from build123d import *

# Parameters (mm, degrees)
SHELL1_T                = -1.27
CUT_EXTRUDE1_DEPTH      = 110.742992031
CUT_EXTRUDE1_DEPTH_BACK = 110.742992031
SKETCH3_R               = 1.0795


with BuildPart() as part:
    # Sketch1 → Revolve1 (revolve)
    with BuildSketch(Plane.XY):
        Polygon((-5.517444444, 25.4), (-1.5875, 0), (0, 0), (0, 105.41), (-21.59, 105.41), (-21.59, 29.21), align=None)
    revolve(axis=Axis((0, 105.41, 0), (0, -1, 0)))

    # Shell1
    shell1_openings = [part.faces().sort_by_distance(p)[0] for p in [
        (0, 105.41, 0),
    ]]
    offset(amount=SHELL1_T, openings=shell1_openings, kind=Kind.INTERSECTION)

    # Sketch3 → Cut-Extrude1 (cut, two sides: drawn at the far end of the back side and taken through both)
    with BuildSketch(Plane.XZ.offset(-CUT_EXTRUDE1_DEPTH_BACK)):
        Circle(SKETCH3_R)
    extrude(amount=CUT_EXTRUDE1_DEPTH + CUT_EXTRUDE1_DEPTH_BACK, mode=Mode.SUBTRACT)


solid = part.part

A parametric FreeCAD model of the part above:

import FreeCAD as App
import Part
import Sketcher
from FreeCAD import Vector
Q = App.Units.Quantity


def faces_at(feature, points):
    """Names of the faces that lie closest to the given points."""
    faces = feature.Shape.Faces
    near = lambda p: min(range(len(faces)), key=lambda i: faces[i].distToShape(Part.Vertex(*p))[0])
    return sorted({f"Face{near(p) + 1}" for p in points})

doc = App.newDocument("Part")
params = doc.addObject("Spreadsheet::Sheet", "Params")
for row, (alias, value) in enumerate([
    ("sketch1_height", "3 in"),
    ("sketch1_width", "0.85 in"),
    ("sketch1_height2", "4.15 in"),
    ("sketch1_width2", "0.0625 in"),
    ("revolution_angle", "360 deg"),
    ("thickness_wall", "0.05 in"),
    ("sketch2_diameter", "0.085 in"),
], start=1):
    params.set(f"A{row}", alias)
    params.set(f"B{row}", "=" + value)
    params.setAlias(f"B{row}", alias)

body = doc.addObject("PartDesign::Body", "Body")

sketch1 = doc.addObject("Sketcher::SketchObject", "Sketch")
body.addObject(sketch1)
sketch1.AttachmentSupport = (doc.XY_Plane, [""])
sketch1.MapMode = "FlatFace"
sketch1.addGeometry([
    Part.LineSegment(Vector(-5.517444, 25.4, 0), Vector(-1.5875, 0, 0)),
    Part.LineSegment(Vector(-1.5875, 0, 0), Vector(0, 0, 0)),
    Part.LineSegment(Vector(0, 0, 0), Vector(0, 105.41, 0)),
    Part.LineSegment(Vector(0, 105.41, 0), Vector(-21.59, 105.41, 0)),
    Part.LineSegment(Vector(-21.59, 105.41, 0), Vector(-21.59, 29.21, 0)),
    Part.LineSegment(Vector(-21.59, 29.21, 0), Vector(-5.517444, 25.4, 0)),
], False)
sketch1.addConstraint([
    Sketcher.Constraint("Coincident", 0, 2, 1, 1),
    Sketcher.Constraint("Coincident", 1, 2, 2, 1),
    Sketcher.Constraint("Coincident", 2, 2, 3, 1),
    Sketcher.Constraint("Coincident", 3, 2, 4, 1),
    Sketcher.Constraint("Coincident", 4, 2, 5, 1),
    Sketcher.Constraint("Coincident", 5, 2, 0, 1),
    Sketcher.Constraint("Horizontal", 1),
    Sketcher.Constraint("Vertical", 2),
    Sketcher.Constraint("Horizontal", 3),
    Sketcher.Constraint("Vertical", 4),
    Sketcher.Constraint("Coincident", 1, 2, -1, 1),
    Sketcher.Constraint("DistanceY", 4, 2, 4, 1, Q("3 in")),
    Sketcher.Constraint("DistanceY", -1, 1, 5, 2, Q("1 in")),
    Sketcher.Constraint("DistanceX", 3, 2, 3, 1, Q("0.85 in")),
    Sketcher.Constraint("DistanceY", 2, 1, 2, 2, Q("4.15 in")),
    Sketcher.Constraint("DistanceX", 1, 1, 1, 2, Q("0.0625 in")),
    Sketcher.Constraint("Distance", 0, Q("25.702227 mm")),
])
sketch1.setExpression("Constraints[11]", "Params.sketch1_height")
sketch1.setExpression("Constraints[13]", "Params.sketch1_width")
sketch1.setExpression("Constraints[14]", "Params.sketch1_height2")
sketch1.setExpression("Constraints[15]", "Params.sketch1_width2")
revolution = doc.addObject("PartDesign::Revolution", "Revolution")
body.addObject(revolution)
revolution.Profile = sketch1
revolution.ReferenceAxis = (sketch1, ["V_Axis"])
revolution.setExpression("Angle", "Params.revolution_angle")
doc.recompute()

thickness = doc.addObject("PartDesign::Thickness", "Thickness")
body.addObject(thickness)
thickness.Base = (revolution, faces_at(revolution, [(0, 105.41, 0)]))
thickness.setExpression("Value", "Params.thickness_wall")
thickness.Reversed = True
thickness.Join = "Intersection"

sketch2 = doc.addObject("Sketcher::SketchObject", "Sketch001")
body.addObject(sketch2)
sketch2.AttachmentSupport = (doc.XZ_Plane, [""])
sketch2.MapMode = "FlatFace"
sketch2.addGeometry(Part.Circle(Vector(0, 0, 0), Vector(0, 0, 1), 1.0795), False)
sketch2.addConstraint([
    Sketcher.Constraint("Coincident", 0, 3, -1, 1),
    Sketcher.Constraint("Diameter", 0, Q("0.085 in")),
])
sketch2.setExpression("Constraints[1]", "Params.sketch2_diameter")
pocket1 = doc.addObject("PartDesign::Pocket", "Pocket")
body.addObject(pocket1)
pocket1.Profile = sketch2
pocket1.Type = "ThroughAll"
pocket1.Midplane = True

doc.recompute()
